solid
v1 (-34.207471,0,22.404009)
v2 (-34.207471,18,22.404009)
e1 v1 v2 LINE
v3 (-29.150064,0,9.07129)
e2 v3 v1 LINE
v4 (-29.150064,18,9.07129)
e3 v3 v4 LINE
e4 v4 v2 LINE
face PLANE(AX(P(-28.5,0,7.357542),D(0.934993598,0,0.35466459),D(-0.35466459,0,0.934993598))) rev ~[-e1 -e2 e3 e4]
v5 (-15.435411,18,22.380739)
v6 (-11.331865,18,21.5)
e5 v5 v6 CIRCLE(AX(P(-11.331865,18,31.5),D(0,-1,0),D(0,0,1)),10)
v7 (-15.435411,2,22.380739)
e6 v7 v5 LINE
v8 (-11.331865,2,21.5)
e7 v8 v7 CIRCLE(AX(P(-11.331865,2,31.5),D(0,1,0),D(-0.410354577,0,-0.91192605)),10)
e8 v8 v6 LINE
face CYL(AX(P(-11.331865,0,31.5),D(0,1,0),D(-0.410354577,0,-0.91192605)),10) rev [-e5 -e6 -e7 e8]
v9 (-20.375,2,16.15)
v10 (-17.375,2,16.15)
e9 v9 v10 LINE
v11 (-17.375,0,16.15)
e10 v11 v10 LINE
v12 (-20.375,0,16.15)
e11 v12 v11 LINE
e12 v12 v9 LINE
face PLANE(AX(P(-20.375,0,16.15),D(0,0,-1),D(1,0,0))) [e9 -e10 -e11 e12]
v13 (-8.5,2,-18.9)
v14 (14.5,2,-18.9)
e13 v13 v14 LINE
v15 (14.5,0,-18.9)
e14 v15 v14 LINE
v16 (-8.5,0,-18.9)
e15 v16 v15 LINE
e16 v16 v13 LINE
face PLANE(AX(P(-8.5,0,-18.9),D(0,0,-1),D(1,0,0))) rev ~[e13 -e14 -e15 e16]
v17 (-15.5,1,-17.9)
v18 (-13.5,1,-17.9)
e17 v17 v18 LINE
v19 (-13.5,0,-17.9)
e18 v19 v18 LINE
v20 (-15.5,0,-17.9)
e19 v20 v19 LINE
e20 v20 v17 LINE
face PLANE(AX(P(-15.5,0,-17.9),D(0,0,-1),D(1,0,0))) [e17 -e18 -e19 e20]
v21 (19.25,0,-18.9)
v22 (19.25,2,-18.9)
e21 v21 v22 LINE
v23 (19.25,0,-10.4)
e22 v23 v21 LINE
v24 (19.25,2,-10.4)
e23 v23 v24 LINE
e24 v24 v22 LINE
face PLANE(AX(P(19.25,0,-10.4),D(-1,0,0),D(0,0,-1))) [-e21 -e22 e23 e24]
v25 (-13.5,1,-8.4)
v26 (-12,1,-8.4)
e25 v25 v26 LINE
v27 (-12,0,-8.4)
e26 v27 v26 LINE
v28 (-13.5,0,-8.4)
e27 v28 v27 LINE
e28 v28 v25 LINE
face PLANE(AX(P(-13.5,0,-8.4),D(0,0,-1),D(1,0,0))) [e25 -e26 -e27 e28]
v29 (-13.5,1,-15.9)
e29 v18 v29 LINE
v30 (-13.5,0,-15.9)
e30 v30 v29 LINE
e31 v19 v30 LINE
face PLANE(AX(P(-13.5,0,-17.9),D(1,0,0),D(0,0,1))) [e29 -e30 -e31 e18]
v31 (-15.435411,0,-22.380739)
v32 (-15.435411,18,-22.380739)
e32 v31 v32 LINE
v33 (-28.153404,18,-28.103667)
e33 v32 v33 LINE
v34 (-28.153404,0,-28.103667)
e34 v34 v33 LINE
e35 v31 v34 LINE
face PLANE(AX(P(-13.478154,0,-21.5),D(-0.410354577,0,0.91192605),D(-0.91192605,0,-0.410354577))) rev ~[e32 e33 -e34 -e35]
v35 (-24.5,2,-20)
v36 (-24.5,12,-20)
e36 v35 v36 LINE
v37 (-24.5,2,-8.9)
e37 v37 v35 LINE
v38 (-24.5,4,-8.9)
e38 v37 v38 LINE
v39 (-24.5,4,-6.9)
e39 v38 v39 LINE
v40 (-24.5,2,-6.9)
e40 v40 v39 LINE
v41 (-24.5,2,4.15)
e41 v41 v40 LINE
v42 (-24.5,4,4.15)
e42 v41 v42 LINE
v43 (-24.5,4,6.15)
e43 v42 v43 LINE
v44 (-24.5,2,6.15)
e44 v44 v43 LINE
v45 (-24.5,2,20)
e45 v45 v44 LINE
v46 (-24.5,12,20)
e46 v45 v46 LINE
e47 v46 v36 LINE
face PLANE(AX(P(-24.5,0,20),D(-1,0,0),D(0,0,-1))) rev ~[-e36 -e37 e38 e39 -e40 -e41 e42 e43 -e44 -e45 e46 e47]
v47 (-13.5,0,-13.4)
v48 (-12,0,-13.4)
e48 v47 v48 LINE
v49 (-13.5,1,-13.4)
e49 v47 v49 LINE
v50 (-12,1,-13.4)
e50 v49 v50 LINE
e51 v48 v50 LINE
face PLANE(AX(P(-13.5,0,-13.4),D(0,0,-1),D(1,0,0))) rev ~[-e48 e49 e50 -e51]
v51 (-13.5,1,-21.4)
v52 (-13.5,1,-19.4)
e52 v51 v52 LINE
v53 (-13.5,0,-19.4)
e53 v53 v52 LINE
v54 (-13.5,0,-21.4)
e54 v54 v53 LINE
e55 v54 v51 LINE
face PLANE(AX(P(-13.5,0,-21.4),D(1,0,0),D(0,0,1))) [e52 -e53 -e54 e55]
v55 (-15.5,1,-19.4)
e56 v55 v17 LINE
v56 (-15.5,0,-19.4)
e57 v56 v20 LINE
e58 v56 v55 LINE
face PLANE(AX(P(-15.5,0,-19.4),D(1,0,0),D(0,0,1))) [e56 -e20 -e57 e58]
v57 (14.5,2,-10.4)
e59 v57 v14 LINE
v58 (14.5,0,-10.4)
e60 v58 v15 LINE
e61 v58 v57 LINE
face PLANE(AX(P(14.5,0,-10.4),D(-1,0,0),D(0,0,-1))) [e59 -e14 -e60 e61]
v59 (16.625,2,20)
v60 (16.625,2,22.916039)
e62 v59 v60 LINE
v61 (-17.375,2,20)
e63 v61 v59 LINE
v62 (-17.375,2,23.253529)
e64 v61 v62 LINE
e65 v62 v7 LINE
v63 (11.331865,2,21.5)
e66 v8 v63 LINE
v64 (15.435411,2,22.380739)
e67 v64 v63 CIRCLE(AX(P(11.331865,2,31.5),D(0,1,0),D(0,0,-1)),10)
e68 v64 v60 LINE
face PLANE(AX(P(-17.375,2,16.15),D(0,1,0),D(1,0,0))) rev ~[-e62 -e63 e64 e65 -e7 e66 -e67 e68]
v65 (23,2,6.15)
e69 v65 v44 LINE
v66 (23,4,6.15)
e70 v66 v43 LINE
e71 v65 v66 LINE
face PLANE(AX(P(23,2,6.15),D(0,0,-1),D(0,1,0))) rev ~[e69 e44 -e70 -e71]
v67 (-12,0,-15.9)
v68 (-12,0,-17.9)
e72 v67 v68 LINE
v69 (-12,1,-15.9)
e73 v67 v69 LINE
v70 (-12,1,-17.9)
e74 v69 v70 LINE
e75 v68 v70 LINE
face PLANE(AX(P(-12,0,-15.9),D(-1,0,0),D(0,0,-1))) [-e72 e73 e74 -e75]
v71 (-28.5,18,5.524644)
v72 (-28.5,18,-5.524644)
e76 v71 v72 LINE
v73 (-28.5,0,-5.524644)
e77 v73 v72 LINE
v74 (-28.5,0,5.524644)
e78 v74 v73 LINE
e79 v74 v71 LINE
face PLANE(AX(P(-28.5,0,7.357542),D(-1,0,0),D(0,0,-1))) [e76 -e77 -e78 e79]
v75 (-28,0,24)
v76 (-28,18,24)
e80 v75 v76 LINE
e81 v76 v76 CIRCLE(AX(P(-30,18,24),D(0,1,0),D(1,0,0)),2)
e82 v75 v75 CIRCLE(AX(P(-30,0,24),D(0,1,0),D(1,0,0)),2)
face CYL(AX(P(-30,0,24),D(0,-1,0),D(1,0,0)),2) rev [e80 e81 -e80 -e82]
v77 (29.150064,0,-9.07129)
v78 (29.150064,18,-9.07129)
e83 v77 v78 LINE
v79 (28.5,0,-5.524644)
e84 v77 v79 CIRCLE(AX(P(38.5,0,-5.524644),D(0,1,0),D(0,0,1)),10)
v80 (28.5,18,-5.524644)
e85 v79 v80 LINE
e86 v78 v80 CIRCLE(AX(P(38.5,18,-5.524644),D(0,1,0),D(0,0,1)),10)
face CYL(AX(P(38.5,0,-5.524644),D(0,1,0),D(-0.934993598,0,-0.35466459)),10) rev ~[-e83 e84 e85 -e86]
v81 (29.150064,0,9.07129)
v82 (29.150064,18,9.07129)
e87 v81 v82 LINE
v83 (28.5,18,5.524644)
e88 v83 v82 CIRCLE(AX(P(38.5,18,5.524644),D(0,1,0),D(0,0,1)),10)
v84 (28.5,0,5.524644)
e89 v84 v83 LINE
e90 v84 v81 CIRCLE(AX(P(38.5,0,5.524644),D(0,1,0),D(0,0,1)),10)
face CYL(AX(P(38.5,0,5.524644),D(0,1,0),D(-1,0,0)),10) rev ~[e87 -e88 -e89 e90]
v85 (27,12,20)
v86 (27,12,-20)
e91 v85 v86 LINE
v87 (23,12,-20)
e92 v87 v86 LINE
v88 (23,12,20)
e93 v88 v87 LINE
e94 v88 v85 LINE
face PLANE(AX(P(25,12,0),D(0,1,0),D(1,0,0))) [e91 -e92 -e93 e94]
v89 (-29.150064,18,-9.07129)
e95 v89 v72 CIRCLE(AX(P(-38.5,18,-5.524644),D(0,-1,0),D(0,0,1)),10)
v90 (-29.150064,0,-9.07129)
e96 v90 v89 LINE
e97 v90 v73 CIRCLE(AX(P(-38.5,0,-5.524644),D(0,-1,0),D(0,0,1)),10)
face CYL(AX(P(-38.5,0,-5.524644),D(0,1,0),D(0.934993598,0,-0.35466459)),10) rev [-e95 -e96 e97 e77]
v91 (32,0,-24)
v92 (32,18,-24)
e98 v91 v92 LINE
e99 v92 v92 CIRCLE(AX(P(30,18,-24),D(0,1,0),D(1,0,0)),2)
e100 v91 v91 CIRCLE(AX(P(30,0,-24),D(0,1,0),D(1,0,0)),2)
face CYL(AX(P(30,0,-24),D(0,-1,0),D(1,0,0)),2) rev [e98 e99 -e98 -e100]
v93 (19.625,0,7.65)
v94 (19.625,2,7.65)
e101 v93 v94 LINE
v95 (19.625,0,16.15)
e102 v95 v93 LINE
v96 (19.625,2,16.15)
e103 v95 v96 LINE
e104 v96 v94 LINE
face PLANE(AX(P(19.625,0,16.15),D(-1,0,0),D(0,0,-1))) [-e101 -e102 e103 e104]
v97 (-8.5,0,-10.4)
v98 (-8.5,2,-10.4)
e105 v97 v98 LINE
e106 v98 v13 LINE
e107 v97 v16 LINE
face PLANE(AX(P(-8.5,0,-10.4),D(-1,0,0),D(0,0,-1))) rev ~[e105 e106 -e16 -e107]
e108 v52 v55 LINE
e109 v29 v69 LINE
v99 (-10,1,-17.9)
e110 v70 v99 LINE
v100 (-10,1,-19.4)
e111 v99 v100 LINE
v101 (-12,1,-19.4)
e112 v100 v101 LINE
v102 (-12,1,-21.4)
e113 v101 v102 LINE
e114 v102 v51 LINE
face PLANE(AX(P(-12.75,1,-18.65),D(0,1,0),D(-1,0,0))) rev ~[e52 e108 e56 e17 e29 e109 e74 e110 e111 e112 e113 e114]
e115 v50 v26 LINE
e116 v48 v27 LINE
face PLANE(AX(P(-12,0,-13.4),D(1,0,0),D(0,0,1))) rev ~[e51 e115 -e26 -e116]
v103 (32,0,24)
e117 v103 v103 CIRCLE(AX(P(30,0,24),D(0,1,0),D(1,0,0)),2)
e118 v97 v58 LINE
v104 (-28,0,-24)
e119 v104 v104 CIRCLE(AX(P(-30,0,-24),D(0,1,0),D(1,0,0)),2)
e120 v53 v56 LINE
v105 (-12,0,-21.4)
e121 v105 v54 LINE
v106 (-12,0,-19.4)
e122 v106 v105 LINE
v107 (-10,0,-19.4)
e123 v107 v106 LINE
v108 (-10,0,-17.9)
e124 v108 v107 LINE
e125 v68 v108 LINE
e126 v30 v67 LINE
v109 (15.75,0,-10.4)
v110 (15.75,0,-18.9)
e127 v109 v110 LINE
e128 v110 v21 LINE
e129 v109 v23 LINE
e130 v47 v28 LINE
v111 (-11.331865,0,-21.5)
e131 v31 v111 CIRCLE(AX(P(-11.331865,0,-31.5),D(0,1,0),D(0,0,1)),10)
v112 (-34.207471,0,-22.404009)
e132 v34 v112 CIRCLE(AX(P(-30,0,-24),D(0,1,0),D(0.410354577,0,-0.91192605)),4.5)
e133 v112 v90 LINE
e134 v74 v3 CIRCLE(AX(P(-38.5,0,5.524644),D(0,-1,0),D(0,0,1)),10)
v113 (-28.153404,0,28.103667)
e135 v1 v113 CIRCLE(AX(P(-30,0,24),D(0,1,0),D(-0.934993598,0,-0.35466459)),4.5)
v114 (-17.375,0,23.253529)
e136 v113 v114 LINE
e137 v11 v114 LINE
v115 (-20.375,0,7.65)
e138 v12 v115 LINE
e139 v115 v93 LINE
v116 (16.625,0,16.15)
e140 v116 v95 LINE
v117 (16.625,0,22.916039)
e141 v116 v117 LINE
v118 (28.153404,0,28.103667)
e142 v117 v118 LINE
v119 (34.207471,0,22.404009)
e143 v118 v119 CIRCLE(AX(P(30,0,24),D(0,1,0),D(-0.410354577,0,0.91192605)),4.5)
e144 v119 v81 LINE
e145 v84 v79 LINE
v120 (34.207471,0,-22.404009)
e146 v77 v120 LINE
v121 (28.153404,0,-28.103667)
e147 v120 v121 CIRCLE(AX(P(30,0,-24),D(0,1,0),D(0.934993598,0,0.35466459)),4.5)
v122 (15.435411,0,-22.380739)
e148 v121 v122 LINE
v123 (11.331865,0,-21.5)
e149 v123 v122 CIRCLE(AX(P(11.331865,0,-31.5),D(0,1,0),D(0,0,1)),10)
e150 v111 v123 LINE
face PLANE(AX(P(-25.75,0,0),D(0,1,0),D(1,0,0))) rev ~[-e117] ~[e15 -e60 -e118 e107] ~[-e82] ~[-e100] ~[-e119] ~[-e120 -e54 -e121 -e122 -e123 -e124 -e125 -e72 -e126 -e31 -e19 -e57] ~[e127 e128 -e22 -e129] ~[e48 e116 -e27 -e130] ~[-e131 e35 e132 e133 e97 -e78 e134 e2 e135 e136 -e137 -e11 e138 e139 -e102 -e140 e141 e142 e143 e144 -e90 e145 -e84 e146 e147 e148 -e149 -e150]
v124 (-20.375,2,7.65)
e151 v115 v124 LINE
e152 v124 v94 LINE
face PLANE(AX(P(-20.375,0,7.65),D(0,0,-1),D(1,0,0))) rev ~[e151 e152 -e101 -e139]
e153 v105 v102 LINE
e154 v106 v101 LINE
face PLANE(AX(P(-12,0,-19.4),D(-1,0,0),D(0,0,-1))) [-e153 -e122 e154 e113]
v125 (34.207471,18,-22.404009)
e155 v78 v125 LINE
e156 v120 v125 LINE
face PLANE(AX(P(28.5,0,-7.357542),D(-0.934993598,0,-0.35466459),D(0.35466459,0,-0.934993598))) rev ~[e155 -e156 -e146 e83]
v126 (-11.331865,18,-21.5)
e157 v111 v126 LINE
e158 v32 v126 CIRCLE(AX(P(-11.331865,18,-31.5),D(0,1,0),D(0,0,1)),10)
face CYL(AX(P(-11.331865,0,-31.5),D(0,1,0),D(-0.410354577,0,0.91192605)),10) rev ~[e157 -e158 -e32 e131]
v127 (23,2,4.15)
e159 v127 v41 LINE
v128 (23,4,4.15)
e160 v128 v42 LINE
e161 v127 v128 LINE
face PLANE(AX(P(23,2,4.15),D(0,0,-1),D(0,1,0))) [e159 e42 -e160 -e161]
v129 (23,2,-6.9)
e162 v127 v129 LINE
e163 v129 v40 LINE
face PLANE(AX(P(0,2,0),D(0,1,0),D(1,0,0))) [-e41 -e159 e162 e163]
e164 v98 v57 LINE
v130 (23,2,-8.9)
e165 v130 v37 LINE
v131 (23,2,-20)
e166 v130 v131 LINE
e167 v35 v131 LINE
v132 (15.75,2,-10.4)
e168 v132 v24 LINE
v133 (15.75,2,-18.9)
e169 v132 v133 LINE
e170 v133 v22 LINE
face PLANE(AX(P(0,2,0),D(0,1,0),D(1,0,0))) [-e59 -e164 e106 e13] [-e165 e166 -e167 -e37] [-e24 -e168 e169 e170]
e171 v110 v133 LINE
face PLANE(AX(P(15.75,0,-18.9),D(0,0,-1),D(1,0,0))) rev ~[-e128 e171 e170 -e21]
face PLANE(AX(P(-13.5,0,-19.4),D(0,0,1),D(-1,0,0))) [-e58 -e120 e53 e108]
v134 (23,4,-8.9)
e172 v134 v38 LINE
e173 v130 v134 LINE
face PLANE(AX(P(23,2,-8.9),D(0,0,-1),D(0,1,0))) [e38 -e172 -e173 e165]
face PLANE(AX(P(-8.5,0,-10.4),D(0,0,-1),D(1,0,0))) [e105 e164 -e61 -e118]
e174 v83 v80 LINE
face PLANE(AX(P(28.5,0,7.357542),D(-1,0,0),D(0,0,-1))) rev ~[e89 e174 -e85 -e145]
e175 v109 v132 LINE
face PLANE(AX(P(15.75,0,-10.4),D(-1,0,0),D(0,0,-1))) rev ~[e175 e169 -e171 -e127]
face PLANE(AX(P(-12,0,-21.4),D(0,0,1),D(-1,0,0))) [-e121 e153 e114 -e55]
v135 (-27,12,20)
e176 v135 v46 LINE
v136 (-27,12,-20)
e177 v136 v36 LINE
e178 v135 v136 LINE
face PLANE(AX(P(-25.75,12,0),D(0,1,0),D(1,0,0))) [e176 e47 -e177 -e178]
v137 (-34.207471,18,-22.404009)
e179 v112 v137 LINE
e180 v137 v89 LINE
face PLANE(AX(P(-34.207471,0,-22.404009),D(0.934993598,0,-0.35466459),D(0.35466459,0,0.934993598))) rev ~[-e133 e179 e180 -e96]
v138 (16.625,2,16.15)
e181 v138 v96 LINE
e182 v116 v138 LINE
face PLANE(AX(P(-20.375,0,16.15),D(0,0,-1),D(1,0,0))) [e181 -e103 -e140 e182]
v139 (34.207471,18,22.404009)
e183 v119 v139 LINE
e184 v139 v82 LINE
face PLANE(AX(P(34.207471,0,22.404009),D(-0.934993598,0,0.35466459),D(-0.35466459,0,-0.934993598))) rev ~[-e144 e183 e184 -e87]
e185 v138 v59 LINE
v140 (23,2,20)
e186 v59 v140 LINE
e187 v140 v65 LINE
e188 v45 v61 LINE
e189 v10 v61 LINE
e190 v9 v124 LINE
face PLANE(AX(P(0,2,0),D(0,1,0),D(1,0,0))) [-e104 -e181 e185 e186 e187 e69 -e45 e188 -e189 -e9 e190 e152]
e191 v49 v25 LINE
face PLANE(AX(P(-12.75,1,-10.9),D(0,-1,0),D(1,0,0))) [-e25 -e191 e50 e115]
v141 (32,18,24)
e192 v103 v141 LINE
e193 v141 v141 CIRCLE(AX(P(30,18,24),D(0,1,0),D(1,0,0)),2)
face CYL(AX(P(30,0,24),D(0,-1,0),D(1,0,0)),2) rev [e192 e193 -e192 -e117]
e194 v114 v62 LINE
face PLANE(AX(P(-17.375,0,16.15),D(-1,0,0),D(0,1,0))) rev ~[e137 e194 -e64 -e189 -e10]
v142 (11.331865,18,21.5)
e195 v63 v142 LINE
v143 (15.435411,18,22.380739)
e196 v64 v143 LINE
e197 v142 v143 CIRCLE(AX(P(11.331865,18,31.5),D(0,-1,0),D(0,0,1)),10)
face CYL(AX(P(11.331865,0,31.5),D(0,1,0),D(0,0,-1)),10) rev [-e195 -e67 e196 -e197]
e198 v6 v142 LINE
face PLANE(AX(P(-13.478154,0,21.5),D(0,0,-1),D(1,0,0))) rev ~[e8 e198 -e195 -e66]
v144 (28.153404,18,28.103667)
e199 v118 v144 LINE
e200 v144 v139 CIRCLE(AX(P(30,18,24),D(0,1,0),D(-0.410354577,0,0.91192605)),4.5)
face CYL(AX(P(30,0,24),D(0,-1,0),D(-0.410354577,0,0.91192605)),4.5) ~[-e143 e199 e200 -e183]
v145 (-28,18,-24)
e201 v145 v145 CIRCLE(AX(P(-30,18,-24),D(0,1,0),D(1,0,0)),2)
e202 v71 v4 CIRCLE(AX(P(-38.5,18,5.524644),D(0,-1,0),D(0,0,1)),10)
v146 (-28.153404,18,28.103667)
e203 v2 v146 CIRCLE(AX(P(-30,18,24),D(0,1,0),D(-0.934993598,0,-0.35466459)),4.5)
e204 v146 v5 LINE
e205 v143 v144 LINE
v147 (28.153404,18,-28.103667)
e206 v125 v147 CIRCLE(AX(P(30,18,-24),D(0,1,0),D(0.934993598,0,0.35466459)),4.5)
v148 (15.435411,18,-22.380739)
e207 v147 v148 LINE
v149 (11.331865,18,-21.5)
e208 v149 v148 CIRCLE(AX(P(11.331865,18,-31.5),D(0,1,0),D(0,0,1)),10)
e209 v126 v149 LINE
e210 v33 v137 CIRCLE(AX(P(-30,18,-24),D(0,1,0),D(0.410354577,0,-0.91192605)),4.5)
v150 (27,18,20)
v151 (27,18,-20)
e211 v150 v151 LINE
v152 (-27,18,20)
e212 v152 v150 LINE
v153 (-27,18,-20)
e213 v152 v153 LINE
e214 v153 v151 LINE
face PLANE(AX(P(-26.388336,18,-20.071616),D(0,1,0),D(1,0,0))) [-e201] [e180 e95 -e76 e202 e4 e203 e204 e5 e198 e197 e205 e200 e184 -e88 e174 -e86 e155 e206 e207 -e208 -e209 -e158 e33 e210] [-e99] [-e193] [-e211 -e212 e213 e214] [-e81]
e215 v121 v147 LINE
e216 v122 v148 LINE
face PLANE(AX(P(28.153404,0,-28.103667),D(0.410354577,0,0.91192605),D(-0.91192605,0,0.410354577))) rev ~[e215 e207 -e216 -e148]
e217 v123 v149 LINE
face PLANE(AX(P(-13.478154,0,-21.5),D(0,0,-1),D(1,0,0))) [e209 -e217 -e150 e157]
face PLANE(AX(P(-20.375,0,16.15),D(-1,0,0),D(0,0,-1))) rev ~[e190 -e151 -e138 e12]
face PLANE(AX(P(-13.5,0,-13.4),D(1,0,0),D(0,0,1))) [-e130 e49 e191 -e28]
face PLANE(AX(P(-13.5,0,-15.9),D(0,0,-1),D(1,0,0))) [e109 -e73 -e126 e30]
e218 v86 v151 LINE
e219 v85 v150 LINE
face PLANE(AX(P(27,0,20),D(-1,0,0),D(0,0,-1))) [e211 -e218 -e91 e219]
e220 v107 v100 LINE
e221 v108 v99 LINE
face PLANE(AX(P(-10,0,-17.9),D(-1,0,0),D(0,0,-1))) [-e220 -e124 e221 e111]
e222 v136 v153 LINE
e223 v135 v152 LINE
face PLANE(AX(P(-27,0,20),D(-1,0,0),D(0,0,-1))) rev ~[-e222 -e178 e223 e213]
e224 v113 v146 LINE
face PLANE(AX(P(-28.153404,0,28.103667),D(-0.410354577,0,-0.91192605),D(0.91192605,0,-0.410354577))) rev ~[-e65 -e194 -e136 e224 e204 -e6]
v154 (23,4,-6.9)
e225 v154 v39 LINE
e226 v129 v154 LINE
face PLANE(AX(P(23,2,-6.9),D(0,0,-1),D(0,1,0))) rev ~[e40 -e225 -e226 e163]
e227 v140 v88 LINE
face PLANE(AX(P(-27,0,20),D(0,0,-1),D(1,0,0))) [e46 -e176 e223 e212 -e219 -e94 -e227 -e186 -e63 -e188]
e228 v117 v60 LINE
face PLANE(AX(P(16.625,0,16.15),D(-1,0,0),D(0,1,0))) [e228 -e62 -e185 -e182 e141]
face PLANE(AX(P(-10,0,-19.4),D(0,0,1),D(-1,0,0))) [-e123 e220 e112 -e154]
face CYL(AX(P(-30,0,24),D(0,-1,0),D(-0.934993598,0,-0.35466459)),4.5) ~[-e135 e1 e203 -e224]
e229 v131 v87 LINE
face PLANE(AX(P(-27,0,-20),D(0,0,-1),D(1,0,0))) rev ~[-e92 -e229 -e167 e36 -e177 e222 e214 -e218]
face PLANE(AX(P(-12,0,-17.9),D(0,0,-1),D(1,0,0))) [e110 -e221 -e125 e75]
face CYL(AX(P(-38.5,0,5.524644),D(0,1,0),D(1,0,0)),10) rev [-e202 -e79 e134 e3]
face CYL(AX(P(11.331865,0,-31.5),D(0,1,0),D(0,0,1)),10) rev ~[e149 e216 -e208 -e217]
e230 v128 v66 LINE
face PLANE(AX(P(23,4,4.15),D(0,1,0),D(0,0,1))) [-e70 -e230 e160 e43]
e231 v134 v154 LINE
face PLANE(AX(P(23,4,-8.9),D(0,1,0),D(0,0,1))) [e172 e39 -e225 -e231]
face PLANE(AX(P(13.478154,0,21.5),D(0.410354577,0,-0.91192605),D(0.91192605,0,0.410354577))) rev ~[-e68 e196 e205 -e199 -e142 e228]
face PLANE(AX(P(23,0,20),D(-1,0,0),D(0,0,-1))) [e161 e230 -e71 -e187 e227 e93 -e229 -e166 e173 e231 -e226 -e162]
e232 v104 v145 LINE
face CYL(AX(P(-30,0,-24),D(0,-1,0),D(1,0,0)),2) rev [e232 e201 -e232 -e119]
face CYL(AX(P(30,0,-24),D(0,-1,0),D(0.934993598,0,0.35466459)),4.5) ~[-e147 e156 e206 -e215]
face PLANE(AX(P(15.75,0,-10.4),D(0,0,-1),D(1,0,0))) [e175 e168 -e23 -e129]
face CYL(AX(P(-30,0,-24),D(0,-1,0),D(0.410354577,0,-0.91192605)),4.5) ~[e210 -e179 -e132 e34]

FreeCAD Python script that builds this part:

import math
import FreeCAD as App
import Part
import Sketcher
from FreeCAD import Vector
Q = App.Units.Quantity


def edges_at(feature, points):
    """Names of the edges that pass closest to the given points."""
    edges = feature.Shape.Edges
    near = lambda p: min(range(len(edges)), key=lambda i: edges[i].distToShape(Part.Vertex(*p))[0])
    return sorted({f"Edge{near(p) + 1}" for p in points})

doc = App.newDocument("Part")
params = doc.addObject("Spreadsheet::Sheet", "Params")
for row, (alias, value) in enumerate([
    ("sketch1_diameter", "4 mm"),
    ("sketch1_radius", "4.5 mm"),
    ("sketch1_width", "54 mm"),
    ("sketch1_height", "40 mm"),
    ("pad1_length", "18 mm"),
    ("sketch2_width", "4 mm"),
    ("sketch2_height", "40 mm"),
    ("sketch2_width2", "2.5 mm"),
    ("pad2_length", "12 mm"),
    ("sketch3_width", "54 mm"),
    ("sketch3_width2", "40 mm"),
    ("sketch3_width3", "23 mm"),
    ("sketch3_width4", "3.5 mm"),
    ("sketch3_height", "8.5 mm"),
    ("pad3_length", "2 mm"),
    ("sketch4_width", "2 mm"),
    ("sketch4_height", "5 mm"),
    ("sketch4_width2", "1.5 mm"),
    ("pocket1_length", "1 mm"),
    ("sketch5_width", "2 mm"),
    ("sketch6_width", "2 mm"),
    ("fillet_radius", "10 mm"),
    ("sketch7_width", "34 mm"),
    ("sketch7_height", "2 mm"),
    ("pocket2_length", "7.103529 mm"),
], start=1):
    params.set(f"A{row}", alias)
    params.set(f"B{row}", "=" + value)
    params.setAlias(f"B{row}", alias)

body = doc.addObject("PartDesign::Body", "Body")

sketch1 = body.newObject("Sketcher::SketchObject", "Sketch")
sketch1.AttachmentSupport = (doc.getObject("XZ_Plane"), [""])
sketch1.MapMode = "FlatFace"
sketch1.addGeometry([
    Part.LineSegment(Vector(-34.2, -22.4, 0), Vector(-28.5, -7.4, 0)),
    Part.LineSegment(Vector(-28.5, -7.4, 0), Vector(-28.5, 7.4, 0)),
    Part.LineSegment(Vector(-28.5, 7.4, 0), Vector(-34.2, 22.4, 0)),
    Part.ArcOfCircle(Part.Circle(Vector(-30, 24, 0), Vector(0, 0, 1), 4.5), math.radians(66), math.radians(201)),
    Part.LineSegment(Vector(-28.2, 28.1, 0), Vector(-13.5, 21.5, 0)),
    Part.LineSegment(Vector(-13.5, 21.5, 0), Vector(13.5, 21.5, 0)),
    Part.LineSegment(Vector(13.5, 21.5, 0), Vector(28.2, 28.1, 0)),
    Part.ArcOfCircle(Part.Circle(Vector(30, 24, 0), Vector(0, 0, 1), 4.5), math.radians(-21), math.radians(114)),
    Part.LineSegment(Vector(34.2, 22.4, 0), Vector(28.5, 7.4, 0)),
    Part.LineSegment(Vector(28.5, 7.4, 0), Vector(28.5, -7.4, 0)),
    Part.LineSegment(Vector(28.5, -7.4, 0), Vector(34.2, -22.4, 0)),
    Part.ArcOfCircle(Part.Circle(Vector(30, -24, 0), Vector(0, 0, 1), 4.5), math.radians(-114), math.radians(21)),
    Part.LineSegment(Vector(28.2, -28.1, 0), Vector(13.5, -21.5, 0)),
    Part.LineSegment(Vector(13.5, -21.5, 0), Vector(-13.5, -21.5, 0)),
    Part.LineSegment(Vector(-13.5, -21.5, 0), Vector(-28.2, -28.1, 0)),
    Part.ArcOfCircle(Part.Circle(Vector(-30, -24, 0), Vector(0, 0, 1), 4.5), math.radians(159), math.radians(294)),
    Part.Circle(Vector(-30, 24, 0), Vector(0, 0, 1), 2),
    Part.Circle(Vector(30, 24, 0), Vector(0, 0, 1), 2),
    Part.LineSegment(Vector(27, 20, 0), Vector(-27, 20, 0)),
    Part.LineSegment(Vector(-27, 20, 0), Vector(-27, -20, 0)),
    Part.LineSegment(Vector(-27, -20, 0), Vector(27, -20, 0)),
    Part.LineSegment(Vector(27, -20, 0), Vector(27, 20, 0)),
    Part.Circle(Vector(-30, -24, 0), Vector(0, 0, 1), 2),
    Part.Circle(Vector(30, -24, 0), Vector(0, 0, 1), 2),
], False)
sketch1.addConstraint([
    Sketcher.Constraint("Coincident", 0, 2, 1, 1),
    Sketcher.Constraint("Coincident", 1, 2, 2, 1),
    Sketcher.Constraint("Tangent", 2, 2, 3, 2),
    Sketcher.Constraint("Tangent", 3, 1, 4, 1),
    Sketcher.Constraint("Coincident", 4, 2, 5, 1),
    Sketcher.Constraint("Coincident", 5, 2, 6, 1),
    Sketcher.Constraint("Tangent", 6, 2, 7, 2),
    Sketcher.Constraint("Tangent", 7, 1, 8, 1),
    Sketcher.Constraint("Coincident", 8, 2, 9, 1),
    Sketcher.Constraint("Coincident", 9, 2, 10, 1),
    Sketcher.Constraint("Tangent", 10, 2, 11, 2),
    Sketcher.Constraint("Tangent", 11, 1, 12, 1),
    Sketcher.Constraint("Coincident", 12, 2, 13, 1),
    Sketcher.Constraint("Coincident", 13, 2, 14, 1),
    Sketcher.Constraint("Tangent", 14, 2, 15, 2),
    Sketcher.Constraint("Tangent", 15, 1, 0, 1),
    Sketcher.Constraint("Coincident", 18, 2, 19, 1),
    Sketcher.Constraint("Coincident", 19, 2, 20, 1),
    Sketcher.Constraint("Coincident", 20, 2, 21, 1),
    Sketcher.Constraint("Coincident", 21, 2, 18, 1),
    Sketcher.Constraint("Vertical", 1),
    Sketcher.Constraint("Horizontal", 5),
    Sketcher.Constraint("Vertical", 9),
    Sketcher.Constraint("Horizontal", 13),
    Sketcher.Constraint("Horizontal", 18),
    Sketcher.Constraint("Vertical", 19),
    Sketcher.Constraint("Horizontal", 20),
    Sketcher.Constraint("Vertical", 21),
    Sketcher.Constraint("Coincident", 16, 3, 3, 3),
    Sketcher.Constraint("Coincident", 17, 3, 7, 3),
    Sketcher.Constraint("Coincident", 22, 3, 15, 3),
    Sketcher.Constraint("Coincident", 23, 3, 11, 3),
    Sketcher.Constraint("Equal", 3, 7),
    Sketcher.Constraint("Equal", 7, 11),
    Sketcher.Constraint("Equal", 11, 15),
    Sketcher.Constraint("Equal", 16, 17),
    Sketcher.Constraint("Equal", 17, 22),
    Sketcher.Constraint("Equal", 22, 23),
    Sketcher.Constraint("Symmetric", 3, 3, 11, 3, -1, 1),
    Sketcher.Constraint("Symmetric", 7, 3, 15, 3, -1, 1),
    Sketcher.Constraint("Symmetric", 0, 2, 8, 2, -1, 1),
    Sketcher.Constraint("Symmetric", 4, 2, 12, 2, -1, 1),
    Sketcher.Constraint("Symmetric", 18, 2, 20, 2, -1, 1),
    Sketcher.Constraint("Symmetric", 3, 3, 7, 3, -2),
    Sketcher.Constraint("Parallel", 2, 10),
    Sketcher.Constraint("Parallel", 6, 14),
    Sketcher.Constraint("Horizontal", 3, 1, 6, 2),
    Sketcher.Constraint("Horizontal", 2, 2, 7, 1),
    Sketcher.Constraint("Equal", 2, 4),
    Sketcher.Constraint("Diameter", 16, Q("4 mm")),
    Sketcher.Constraint("Radius", 3, Q("4.5 mm")),
    Sketcher.Constraint("DistanceX", 18, 2, 18, 1, Q("54 mm")),
    Sketcher.Constraint("DistanceY", 19, 2, 19, 1, Q("40 mm")),
    Sketcher.Constraint("DistanceX", 3, 3, -1, 1, Q("30 mm")),
    Sketcher.Constraint("DistanceY", -1, 1, 3, 3, Q("24 mm")),
    Sketcher.Constraint("DistanceX", 0, 2, -1, 1, Q("28.5 mm")),
    Sketcher.Constraint("DistanceY", -1, 1, 4, 2, Q("21.5 mm")),
    Sketcher.Constraint("DistanceX", 5, 1, 5, 2, Q("26.956308 mm")),
])
sketch1.setExpression("Constraints[49]", "Params.sketch1_diameter")
sketch1.setExpression("Constraints[50]", "Params.sketch1_radius")
sketch1.setExpression("Constraints[51]", "Params.sketch1_width")
sketch1.setExpression("Constraints[52]", "Params.sketch1_height")
pad1 = body.newObject("PartDesign::Pad", "Pad")
pad1.Profile = sketch1
pad1.setExpression("Length", "Params.pad1_length")
pad1.Reversed = True

sketch2 = body.newObject("Sketcher::SketchObject", "Sketch001")
sketch2.AttachmentSupport = (doc.getObject("XZ_Plane"), [""])
sketch2.MapMode = "FlatFace"
sketch2.addGeometry([
    Part.LineSegment(Vector(-27, -20, 0), Vector(-27, 20, 0)),
    Part.LineSegment(Vector(-27, 20, 0), Vector(-24.5, 20, 0)),
    Part.LineSegment(Vector(-24.5, 20, 0), Vector(-24.5, -20, 0)),
    Part.LineSegment(Vector(-24.5, -20, 0), Vector(-27, -20, 0)),
    Part.LineSegment(Vector(23, -20, 0), Vector(23, 20, 0)),
    Part.LineSegment(Vector(23, 20, 0), Vector(27, 20, 0)),
    Part.LineSegment(Vector(27, 20, 0), Vector(27, -20, 0)),
    Part.LineSegment(Vector(27, -20, 0), Vector(23, -20, 0)),
], False)
sketch2.addConstraint([
    Sketcher.Constraint("Coincident", 0, 2, 1, 1),
    Sketcher.Constraint("Coincident", 1, 2, 2, 1),
    Sketcher.Constraint("Coincident", 2, 2, 3, 1),
    Sketcher.Constraint("Coincident", 3, 2, 0, 1),
    Sketcher.Constraint("Coincident", 4, 2, 5, 1),
    Sketcher.Constraint("Coincident", 5, 2, 6, 1),
    Sketcher.Constraint("Coincident", 6, 2, 7, 1),
    Sketcher.Constraint("Coincident", 7, 2, 4, 1),
    Sketcher.Constraint("Vertical", 0),
    Sketcher.Constraint("Horizontal", 1),
    Sketcher.Constraint("Vertical", 2),
    Sketcher.Constraint("Horizontal", 3),
    Sketcher.Constraint("Vertical", 4),
    Sketcher.Constraint("Horizontal", 5),
    Sketcher.Constraint("Vertical", 6),
    Sketcher.Constraint("Horizontal", 7),
    Sketcher.Constraint("Symmetric", 3, 2, 5, 2, -1, 1),
    Sketcher.Constraint("Horizontal", 1, 2, 4, 2),
    Sketcher.Constraint("Horizontal", 3, 2, 6, 2),
    Sketcher.Constraint("DistanceX", 5, 1, 5, 2, Q("4 mm")),
    Sketcher.Constraint("DistanceY", 0, 1, 0, 2, Q("40 mm")),
    Sketcher.Constraint("DistanceX", 1, 1, 1, 2, Q("2.5 mm")),
    Sketcher.Constraint("DistanceX", 0, 2, -1, 1, Q("27 mm")),
])
sketch2.setExpression("Constraints[19]", "Params.sketch2_width")
sketch2.setExpression("Constraints[20]", "Params.sketch2_height")
sketch2.setExpression("Constraints[21]", "Params.sketch2_width2")
pad2 = body.newObject("PartDesign::Pad", "Pad001")
pad2.Profile = sketch2
pad2.setExpression("Length", "Params.pad2_length")
pad2.Reversed = True

sketch3 = body.newObject("Sketcher::SketchObject", "Sketch002")
sketch3.AttachmentSupport = (doc.getObject("XZ_Plane"), [""])
sketch3.MapMode = "FlatFace"
sketch3.addGeometry([
    Part.LineSegment(Vector(-27, -20, 0), Vector(-27, 20, 0)),
    Part.LineSegment(Vector(-27, 20, 0), Vector(27, 20, 0)),
    Part.LineSegment(Vector(27, 20, 0), Vector(27, -20, 0)),
    Part.LineSegment(Vector(27, -20, 0), Vector(-27, -20, 0)),
    Part.LineSegment(Vector(19.6, 16.1, 0), Vector(-20.4, 16.1, 0)),
    Part.LineSegment(Vector(-20.4, 16.1, 0), Vector(-20.4, 7.7, 0)),
    Part.LineSegment(Vector(-20.4, 7.7, 0), Vector(19.6, 7.7, 0)),
    Part.LineSegment(Vector(19.6, 7.7, 0), Vector(19.6, 16.1, 0)),
    Part.LineSegment(Vector(14.5, -10.4, 0), Vector(-8.5, -10.4, 0)),
    Part.LineSegment(Vector(-8.5, -10.4, 0), Vector(-8.5, -18.9, 0)),
    Part.LineSegment(Vector(-8.5, -18.9, 0), Vector(14.5, -18.9, 0)),
    Part.LineSegment(Vector(14.5, -18.9, 0), Vector(14.5, -10.4, 0)),
    Part.LineSegment(Vector(19.2, -10.4, 0), Vector(15.8, -10.4, 0)),
    Part.LineSegment(Vector(15.8, -10.4, 0), Vector(15.8, -18.9, 0)),
    Part.LineSegment(Vector(15.8, -18.9, 0), Vector(19.2, -18.9, 0)),
    Part.LineSegment(Vector(19.2, -18.9, 0), Vector(19.2, -10.4, 0)),
], False)
sketch3.addConstraint([
    Sketcher.Constraint("Coincident", 0, 2, 1, 1),
    Sketcher.Constraint("Coincident", 1, 2, 2, 1),
    Sketcher.Constraint("Coincident", 2, 2, 3, 1),
    Sketcher.Constraint("Coincident", 3, 2, 0, 1),
    Sketcher.Constraint("Coincident", 4, 2, 5, 1),
    Sketcher.Constraint("Coincident", 5, 2, 6, 1),
    Sketcher.Constraint("Coincident", 6, 2, 7, 1),
    Sketcher.Constraint("Coincident", 7, 2, 4, 1),
    Sketcher.Constraint("Coincident", 8, 2, 9, 1),
    Sketcher.Constraint("Coincident", 9, 2, 10, 1),
    Sketcher.Constraint("Coincident", 10, 2, 11, 1),
    Sketcher.Constraint("Coincident", 11, 2, 8, 1),
    Sketcher.Constraint("Coincident", 12, 2, 13, 1),
    Sketcher.Constraint("Coincident", 13, 2, 14, 1),
    Sketcher.Constraint("Coincident", 14, 2, 15, 1),
    Sketcher.Constraint("Coincident", 15, 2, 12, 1),
    Sketcher.Constraint("Vertical", 0),
    Sketcher.Constraint("Horizontal", 1),
    Sketcher.Constraint("Vertical", 2),
    Sketcher.Constraint("Horizontal", 3),
    Sketcher.Constraint("Horizontal", 4),
    Sketcher.Constraint("Vertical", 5),
    Sketcher.Constraint("Horizontal", 6),
    Sketcher.Constraint("Vertical", 7),
    Sketcher.Constraint("Horizontal", 8),
    Sketcher.Constraint("Vertical", 9),
    Sketcher.Constraint("Horizontal", 10),
    Sketcher.Constraint("Vertical", 11),
    Sketcher.Constraint("Horizontal", 12),
    Sketcher.Constraint("Vertical", 13),
    Sketcher.Constraint("Horizontal", 14),
    Sketcher.Constraint("Vertical", 15),
    Sketcher.Constraint("Symmetric", 0, 2, 2, 2, -1, 1),
    Sketcher.Constraint("Horizontal", 11, 2, 12, 2),
    Sketcher.Constraint("Horizontal", 10, 2, 13, 2),
    Sketcher.Constraint("Equal", 6, 0),
    Sketcher.Constraint("Equal", 7, 9),
    Sketcher.Constraint("DistanceX", 1, 1, 1, 2, Q("54 mm")),
    Sketcher.Constraint("DistanceX", 4, 2, 4, 1, Q("40 mm")),
    Sketcher.Constraint("DistanceX", 8, 2, 8, 1, Q("23 mm")),
    Sketcher.Constraint("DistanceX", 12, 2, 12, 1, Q("3.5 mm")),
    Sketcher.Constraint("DistanceY", 5, 2, 5, 1, Q("8.5 mm")),
    Sketcher.Constraint("DistanceX", 8, 2, -1, 1, Q("8.5 mm")),
    Sketcher.Constraint("DistanceY", 8, 2, -1, 1, Q("10.4 mm")),
    Sketcher.Constraint("DistanceY", -1, 1, 4, 2, Q("16.15 mm")),
    Sketcher.Constraint("DistanceX", -1, 1, 12, 2, Q("15.75 mm")),
    Sketcher.Constraint("DistanceX", 4, 2, -1, 1, Q("20.375 mm")),
])
sketch3.setExpression("Constraints[37]", "Params.sketch3_width")
sketch3.setExpression("Constraints[38]", "Params.sketch3_width2")
sketch3.setExpression("Constraints[39]", "Params.sketch3_width3")
sketch3.setExpression("Constraints[40]", "Params.sketch3_width4")
sketch3.setExpression("Constraints[41]", "Params.sketch3_height")
pad3 = body.newObject("PartDesign::Pad", "Pad002")
pad3.Profile = sketch3
pad3.setExpression("Length", "Params.pad3_length")
pad3.Reversed = True

sketch4 = body.newObject("Sketcher::SketchObject", "Sketch003")
sketch4.AttachmentSupport = (doc.getObject("XZ_Plane"), [""])
sketch4.MapMode = "FlatFace"
sketch4.addGeometry([
    Part.LineSegment(Vector(-10, -19.4, 0), Vector(-10, -17.9, 0)),
    Part.LineSegment(Vector(-10, -17.9, 0), Vector(-12, -17.9, 0)),
    Part.LineSegment(Vector(-12, -17.9, 0), Vector(-12, -15.9, 0)),
    Part.LineSegment(Vector(-12, -15.9, 0), Vector(-13.5, -15.9, 0)),
    Part.LineSegment(Vector(-13.5, -15.9, 0), Vector(-13.5, -17.9, 0)),
    Part.LineSegment(Vector(-13.5, -17.9, 0), Vector(-15.5, -17.9, 0)),
    Part.LineSegment(Vector(-15.5, -17.9, 0), Vector(-15.5, -19.4, 0)),
    Part.LineSegment(Vector(-15.5, -19.4, 0), Vector(-13.5, -19.4, 0)),
    Part.LineSegment(Vector(-13.5, -19.4, 0), Vector(-13.5, -21.4, 0)),
    Part.LineSegment(Vector(-13.5, -21.4, 0), Vector(-12, -21.4, 0)),
    Part.LineSegment(Vector(-12, -21.4, 0), Vector(-12, -19.4, 0)),
    Part.LineSegment(Vector(-12, -19.4, 0), Vector(-10, -19.4, 0)),
    Part.LineSegment(Vector(-13.5, -8.4, 0), Vector(-13.5, -13.4, 0)),
    Part.LineSegment(Vector(-13.5, -13.4, 0), Vector(-12, -13.4, 0)),
    Part.LineSegment(Vector(-12, -13.4, 0), Vector(-12, -8.4, 0)),
    Part.LineSegment(Vector(-12, -8.4, 0), Vector(-13.5, -8.4, 0)),
], False)
sketch4.addConstraint([
    Sketcher.Constraint("Coincident", 0, 2, 1, 1),
    Sketcher.Constraint("Coincident", 1, 2, 2, 1),
    Sketcher.Constraint("Coincident", 2, 2, 3, 1),
    Sketcher.Constraint("Coincident", 3, 2, 4, 1),
    Sketcher.Constraint("Coincident", 4, 2, 5, 1),
    Sketcher.Constraint("Coincident", 5, 2, 6, 1),
    Sketcher.Constraint("Coincident", 6, 2, 7, 1),
    Sketcher.Constraint("Coincident", 7, 2, 8, 1),
    Sketcher.Constraint("Coincident", 8, 2, 9, 1),
    Sketcher.Constraint("Coincident", 9, 2, 10, 1),
    Sketcher.Constraint("Coincident", 10, 2, 11, 1),
    Sketcher.Constraint("Coincident", 11, 2, 0, 1),
    Sketcher.Constraint("Coincident", 12, 2, 13, 1),
    Sketcher.Constraint("Coincident", 13, 2, 14, 1),
    Sketcher.Constraint("Coincident", 14, 2, 15, 1),
    Sketcher.Constraint("Coincident", 15, 2, 12, 1),
    Sketcher.Constraint("Vertical", 0),
    Sketcher.Constraint("Horizontal", 1),
    Sketcher.Constraint("Vertical", 2),
    Sketcher.Constraint("Horizontal", 3),
    Sketcher.Constraint("Vertical", 4),
    Sketcher.Constraint("Horizontal", 5),
    Sketcher.Constraint("Vertical", 6),
    Sketcher.Constraint("Horizontal", 7),
    Sketcher.Constraint("Vertical", 8),
    Sketcher.Constraint("Horizontal", 9),
    Sketcher.Constraint("Vertical", 10),
    Sketcher.Constraint("Horizontal", 11),
    Sketcher.Constraint("Vertical", 12),
    Sketcher.Constraint("Horizontal", 13),
    Sketcher.Constraint("Vertical", 14),
    Sketcher.Constraint("Horizontal", 15),
    Sketcher.Constraint("Horizontal", 1, 2, 4, 2),
    Sketcher.Constraint("Horizontal", 7, 2, 10, 2),
    Sketcher.Constraint("Vertical", 4, 2, 7, 2),
    Sketcher.Constraint("Vertical", 2, 2, 9, 2),
    Sketcher.Constraint("Vertical", 8, 2, 12, 2),
    Sketcher.Constraint("Vertical", 10, 2, 13, 2),
    Sketcher.Constraint("Equal", 1, 5),
    Sketcher.Constraint("Equal", 15, 0),
    Sketcher.Constraint("Equal", 11, 2),
    Sketcher.Constraint("Equal", 4, 8),
    Sketcher.Constraint("DistanceX", 1, 2, 1, 1, Q("2 mm")),
    Sketcher.Constraint("DistanceY", 12, 2, 12, 1, Q("5 mm")),
    Sketcher.Constraint("DistanceX", 3, 2, 3, 1, Q("1.5 mm")),
    Sketcher.Constraint("DistanceX", 0, 2, -1, 1, Q("10 mm")),
    Sketcher.Constraint("DistanceY", 0, 2, -1, 1, Q("17.9 mm")),
    Sketcher.Constraint("DistanceY", 12, 2, -1, 1, Q("13.4 mm")),
])
sketch4.setExpression("Constraints[42]", "Params.sketch4_width")
sketch4.setExpression("Constraints[43]", "Params.sketch4_height")
sketch4.setExpression("Constraints[44]", "Params.sketch4_width2")
pocket1 = body.newObject("PartDesign::Pocket", "Pocket")
pocket1.Profile = sketch4
pocket1.setExpression("Length", "Params.pocket1_length")

sketch5 = body.newObject("Sketcher::SketchObject", "Sketch004")
sketch5.AttachmentSupport = (doc.getObject("YZ_Plane"), [""])
sketch5.MapMode = "FlatFace"
sketch5.AttachmentOffset = App.Placement(Vector(0, 0, 23), App.Rotation())
sketch5.addGeometry([
    Part.LineSegment(Vector(4, 4.2, 0), Vector(2, 4.2, 0)),
    Part.LineSegment(Vector(2, 4.2, 0), Vector(2, 6.2, 0)),
    Part.LineSegment(Vector(2, 6.2, 0), Vector(4, 6.2, 0)),
    Part.LineSegment(Vector(4, 6.2, 0), Vector(4, 4.2, 0)),
], False)
sketch5.addConstraint([
    Sketcher.Constraint("Coincident", 0, 2, 1, 1),
    Sketcher.Constraint("Coincident", 1, 2, 2, 1),
    Sketcher.Constraint("Coincident", 2, 2, 3, 1),
    Sketcher.Constraint("Coincident", 3, 2, 0, 1),
    Sketcher.Constraint("Horizontal", 0),
    Sketcher.Constraint("Vertical", 1),
    Sketcher.Constraint("Horizontal", 2),
    Sketcher.Constraint("Vertical", 3),
    Sketcher.Constraint("Equal", 2, 1),
    Sketcher.Constraint("DistanceX", 0, 2, 0, 1, Q("2 mm")),
    Sketcher.Constraint("DistanceX", -1, 1, 0, 2, Q("2 mm")),
    Sketcher.Constraint("DistanceY", -1, 1, 0, 2, Q("4.15 mm")),
])
sketch5.setExpression("Constraints[9]", "Params.sketch5_width")
pad4 = body.newObject("PartDesign::Pad", "Pad003")
pad4.Profile = sketch5
pad4.Type = "UpToFirst"
pad4.Reversed = True

sketch6 = body.newObject("Sketcher::SketchObject", "Sketch005")
sketch6.AttachmentSupport = (doc.getObject("YZ_Plane"), [""])
sketch6.MapMode = "FlatFace"
sketch6.AttachmentOffset = App.Placement(Vector(0, 0, 23), App.Rotation())
sketch6.addGeometry([
    Part.LineSegment(Vector(4, -8.9, 0), Vector(2, -8.9, 0)),
    Part.LineSegment(Vector(2, -8.9, 0), Vector(2, -6.9, 0)),
    Part.LineSegment(Vector(2, -6.9, 0), Vector(4, -6.9, 0)),
    Part.LineSegment(Vector(4, -6.9, 0), Vector(4, -8.9, 0)),
], False)
sketch6.addConstraint([
    Sketcher.Constraint("Coincident", 0, 2, 1, 1),
    Sketcher.Constraint("Coincident", 1, 2, 2, 1),
    Sketcher.Constraint("Coincident", 2, 2, 3, 1),
    Sketcher.Constraint("Coincident", 3, 2, 0, 1),
    Sketcher.Constraint("Horizontal", 0),
    Sketcher.Constraint("Vertical", 1),
    Sketcher.Constraint("Horizontal", 2),
    Sketcher.Constraint("Vertical", 3),
    Sketcher.Constraint("Equal", 2, 1),
    Sketcher.Constraint("DistanceX", 0, 2, 0, 1, Q("2 mm")),
    Sketcher.Constraint("DistanceX", -1, 1, 0, 2, Q("2 mm")),
    Sketcher.Constraint("DistanceY", 0, 2, -1, 1, Q("8.9 mm")),
])
sketch6.setExpression("Constraints[9]", "Params.sketch6_width")
pad5 = body.newObject("PartDesign::Pad", "Pad004")
pad5.Profile = sketch6
pad5.Type = "UpToFirst"
pad5.Reversed = True
doc.recompute()

fillet = body.newObject("PartDesign::Fillet", "Fillet")
fillet.Base = (pad5, edges_at(pad5, [
    (28.5, 9, 7.358),
    (13.478, 9, 21.5),
    (-13.478, 9, 21.5),
    (-28.5, 9, 7.358),
    (-28.5, 9, -7.358),
    (-13.478, 9, -21.5),
    (13.478, 9, -21.5),
    (28.5, 9, -7.358),
]))
fillet.setExpression("Radius", "Params.fillet_radius")

sketch7 = body.newObject("Sketcher::SketchObject", "Sketch006")
sketch7.AttachmentSupport = (doc.getObject("XY_Plane"), [""])
sketch7.MapMode = "FlatFace"
sketch7.AttachmentOffset = App.Placement(Vector(0, 0, 16.15), App.Rotation())
sketch7.addGeometry([
    Part.LineSegment(Vector(-17.4, 2, 0), Vector(-17.4, 0, 0)),
    Part.LineSegment(Vector(-17.4, 0, 0), Vector(16.6, 0, 0)),
    Part.LineSegment(Vector(16.6, 0, 0), Vector(16.6, 2, 0)),
    Part.LineSegment(Vector(16.6, 2, 0), Vector(-17.4, 2, 0)),
], False)
sketch7.addConstraint([
    Sketcher.Constraint("Coincident", 0, 2, 1, 1),
    Sketcher.Constraint("Coincident", 1, 2, 2, 1),
    Sketcher.Constraint("Coincident", 2, 2, 3, 1),
    Sketcher.Constraint("Coincident", 3, 2, 0, 1),
    Sketcher.Constraint("Vertical", 0),
    Sketcher.Constraint("Horizontal", 1),
    Sketcher.Constraint("Vertical", 2),
    Sketcher.Constraint("Horizontal", 3),
    Sketcher.Constraint("PointOnObject", 0, 2, -1),
    Sketcher.Constraint("DistanceX", 1, 1, 1, 2, Q("34 mm")),
    Sketcher.Constraint("DistanceY", 0, 2, 0, 1, Q("2 mm")),
    Sketcher.Constraint("DistanceX", 0, 2, -1, 1, Q("17.375 mm")),
])
sketch7.setExpression("Constraints[9]", "Params.sketch7_width")
sketch7.setExpression("Constraints[10]", "Params.sketch7_height")
pocket2 = body.newObject("PartDesign::Pocket", "Pocket001")
pocket2.Profile = sketch7
pocket2.setExpression("Length", "Params.pocket2_length")
pocket2.Reversed = True

doc.recompute()
